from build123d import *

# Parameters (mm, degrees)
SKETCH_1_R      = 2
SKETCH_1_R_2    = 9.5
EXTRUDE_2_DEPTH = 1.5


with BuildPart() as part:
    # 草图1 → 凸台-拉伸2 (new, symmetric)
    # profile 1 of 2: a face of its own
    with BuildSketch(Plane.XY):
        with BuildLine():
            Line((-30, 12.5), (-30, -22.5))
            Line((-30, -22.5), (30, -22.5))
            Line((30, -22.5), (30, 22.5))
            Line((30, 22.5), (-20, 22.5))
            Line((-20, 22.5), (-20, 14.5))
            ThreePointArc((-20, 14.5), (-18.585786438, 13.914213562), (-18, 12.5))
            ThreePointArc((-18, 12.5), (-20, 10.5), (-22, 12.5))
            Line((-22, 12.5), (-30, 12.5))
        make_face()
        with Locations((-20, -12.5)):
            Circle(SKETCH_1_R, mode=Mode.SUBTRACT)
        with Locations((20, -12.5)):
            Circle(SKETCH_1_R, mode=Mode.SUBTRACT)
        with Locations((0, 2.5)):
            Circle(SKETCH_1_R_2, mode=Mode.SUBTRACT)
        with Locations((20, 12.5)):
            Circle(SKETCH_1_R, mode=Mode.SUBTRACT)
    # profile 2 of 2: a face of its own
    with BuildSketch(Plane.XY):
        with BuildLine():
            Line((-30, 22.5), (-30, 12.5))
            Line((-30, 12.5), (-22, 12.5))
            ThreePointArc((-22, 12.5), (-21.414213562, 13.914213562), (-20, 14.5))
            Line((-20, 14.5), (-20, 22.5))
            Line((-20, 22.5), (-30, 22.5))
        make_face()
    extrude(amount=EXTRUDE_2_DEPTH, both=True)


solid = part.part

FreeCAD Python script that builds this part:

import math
import FreeCAD as App
import Part
import Sketcher
from FreeCAD import Vector

doc = App.newDocument("Part")
body = doc.addObject("PartDesign::Body", "Body")

# Sketch on XY plane
sketch1 = body.newObject("Sketcher::SketchObject", "Sketch")
sketch1.AttachmentSupport = (doc.getObject("XY_Plane"), [""])
sketch1.MapMode = "FlatFace"
sketch1.addGeometry(Part.LineSegment(Vector(-30, -22.5, 0), Vector(30, -22.5, 0)), False)
sketch1.addGeometry(Part.LineSegment(Vector(30, -22.5, 0), Vector(30, 22.5, 0)), False)
sketch1.addGeometry(Part.LineSegment(Vector(30, 22.5, 0), Vector(-30, 22.5, 0)), False)
sketch1.addGeometry(Part.LineSegment(Vector(-30, 22.5, 0), Vector(-30, -22.5, 0)), False)
sketch1.addGeometry(Part.ArcOfCircle(Part.Circle(Vector(-20, 12.5, 0), Vector(0, 0, 1), 2), math.radians(180), math.radians(360)), False)
sketch1.addGeometry(Part.ArcOfCircle(Part.Circle(Vector(-20, 12.5, 0), Vector(0, 0, 1), 2), math.radians(90), math.radians(180)), False)
sketch1.addGeometry(Part.ArcOfCircle(Part.Circle(Vector(-20, 12.5, 0), Vector(0, 0, 1), 2), math.radians(0), math.radians(90)), False)
sketch1.addGeometry(Part.Circle(Vector(-20, -12.5, 0), Vector(0, 0, 1), 2), False)
sketch1.addGeometry(Part.Circle(Vector(20, -12.5, 0), Vector(0, 0, 1), 2), False)
sketch1.addGeometry(Part.Circle(Vector(0, 2.5, 0), Vector(0, 0, 1), 9.5), False)
sketch1.addGeometry(Part.Circle(Vector(20, 12.5, 0), Vector(0, 0, 1), 2), False)
sketch1.addConstraint(Sketcher.Constraint("Coincident", 0, 2, 1, 1))
sketch1.addConstraint(Sketcher.Constraint("Coincident", 1, 2, 2, 1))
sketch1.addConstraint(Sketcher.Constraint("Coincident", 2, 2, 3, 1))
sketch1.addConstraint(Sketcher.Constraint("Coincident", 3, 2, 0, 1))
sketch1.addConstraint(Sketcher.Constraint("Tangent", 4, 1, 5, 2))
sketch1.addConstraint(Sketcher.Constraint("Tangent", 5, 1, 6, 2))
sketch1.addConstraint(Sketcher.Constraint("Tangent", 6, 1, 4, 2))
sketch1.addConstraint(Sketcher.Constraint("Horizontal", 0))
sketch1.addConstraint(Sketcher.Constraint("Vertical", 1))
sketch1.addConstraint(Sketcher.Constraint("Horizontal", 2))
sketch1.addConstraint(Sketcher.Constraint("Vertical", 3))
sketch1.addConstraint(Sketcher.Constraint("Equal", 6, 7))
sketch1.addConstraint(Sketcher.Constraint("Equal", 7, 8))
sketch1.addConstraint(Sketcher.Constraint("Equal", 8, 10))
sketch1.addConstraint(Sketcher.Constraint("Symmetric", 4, 3, 8, 3, -1, 1))
sketch1.addConstraint(Sketcher.Constraint("Symmetric", 7, 3, 10, 3, -1, 1))
sketch1.addConstraint(Sketcher.Constraint("Symmetric", 0, 2, 2, 2, -1, 1))
sketch1.addConstraint(Sketcher.Constraint("Symmetric", 7, 3, 8, 3, -2))
sketch1.addConstraint(Sketcher.Constraint("PointOnObject", 9, 3, -2))
sketch1.addConstraint(Sketcher.Constraint("Horizontal", 10, 3, 4, 1))
sketch1.addConstraint(Sketcher.Constraint("Horizontal", 4, 1, 6, 1))
sketch1.addConstraint(Sketcher.Constraint("Vertical", 7, 3, 5, 1))
sketch1.addConstraint(Sketcher.Constraint("Diameter", 7, 4.0))
sketch1.addConstraint(Sketcher.Constraint("Diameter", 9, 19.0))
sketch1.addConstraint(Sketcher.Constraint("DistanceX", 0, 1, 0, 2, 60.0))
sketch1.addConstraint(Sketcher.Constraint("DistanceY", 1, 1, 1, 2, 45.0))
sketch1.addConstraint(Sketcher.Constraint("DistanceX", 4, 3, -1, 1, 20.0))
sketch1.addConstraint(Sketcher.Constraint("DistanceY", 7, 3, 5, 3, 25.0))
sketch1.addConstraint(Sketcher.Constraint("DistanceY", 9, 3, 5, 3, 10.0))
pad1 = body.newObject("PartDesign::Pad", "Pad")
pad1.Profile = sketch1
pad1.Length = 3
pad1.Midplane = True

doc.recompute()
